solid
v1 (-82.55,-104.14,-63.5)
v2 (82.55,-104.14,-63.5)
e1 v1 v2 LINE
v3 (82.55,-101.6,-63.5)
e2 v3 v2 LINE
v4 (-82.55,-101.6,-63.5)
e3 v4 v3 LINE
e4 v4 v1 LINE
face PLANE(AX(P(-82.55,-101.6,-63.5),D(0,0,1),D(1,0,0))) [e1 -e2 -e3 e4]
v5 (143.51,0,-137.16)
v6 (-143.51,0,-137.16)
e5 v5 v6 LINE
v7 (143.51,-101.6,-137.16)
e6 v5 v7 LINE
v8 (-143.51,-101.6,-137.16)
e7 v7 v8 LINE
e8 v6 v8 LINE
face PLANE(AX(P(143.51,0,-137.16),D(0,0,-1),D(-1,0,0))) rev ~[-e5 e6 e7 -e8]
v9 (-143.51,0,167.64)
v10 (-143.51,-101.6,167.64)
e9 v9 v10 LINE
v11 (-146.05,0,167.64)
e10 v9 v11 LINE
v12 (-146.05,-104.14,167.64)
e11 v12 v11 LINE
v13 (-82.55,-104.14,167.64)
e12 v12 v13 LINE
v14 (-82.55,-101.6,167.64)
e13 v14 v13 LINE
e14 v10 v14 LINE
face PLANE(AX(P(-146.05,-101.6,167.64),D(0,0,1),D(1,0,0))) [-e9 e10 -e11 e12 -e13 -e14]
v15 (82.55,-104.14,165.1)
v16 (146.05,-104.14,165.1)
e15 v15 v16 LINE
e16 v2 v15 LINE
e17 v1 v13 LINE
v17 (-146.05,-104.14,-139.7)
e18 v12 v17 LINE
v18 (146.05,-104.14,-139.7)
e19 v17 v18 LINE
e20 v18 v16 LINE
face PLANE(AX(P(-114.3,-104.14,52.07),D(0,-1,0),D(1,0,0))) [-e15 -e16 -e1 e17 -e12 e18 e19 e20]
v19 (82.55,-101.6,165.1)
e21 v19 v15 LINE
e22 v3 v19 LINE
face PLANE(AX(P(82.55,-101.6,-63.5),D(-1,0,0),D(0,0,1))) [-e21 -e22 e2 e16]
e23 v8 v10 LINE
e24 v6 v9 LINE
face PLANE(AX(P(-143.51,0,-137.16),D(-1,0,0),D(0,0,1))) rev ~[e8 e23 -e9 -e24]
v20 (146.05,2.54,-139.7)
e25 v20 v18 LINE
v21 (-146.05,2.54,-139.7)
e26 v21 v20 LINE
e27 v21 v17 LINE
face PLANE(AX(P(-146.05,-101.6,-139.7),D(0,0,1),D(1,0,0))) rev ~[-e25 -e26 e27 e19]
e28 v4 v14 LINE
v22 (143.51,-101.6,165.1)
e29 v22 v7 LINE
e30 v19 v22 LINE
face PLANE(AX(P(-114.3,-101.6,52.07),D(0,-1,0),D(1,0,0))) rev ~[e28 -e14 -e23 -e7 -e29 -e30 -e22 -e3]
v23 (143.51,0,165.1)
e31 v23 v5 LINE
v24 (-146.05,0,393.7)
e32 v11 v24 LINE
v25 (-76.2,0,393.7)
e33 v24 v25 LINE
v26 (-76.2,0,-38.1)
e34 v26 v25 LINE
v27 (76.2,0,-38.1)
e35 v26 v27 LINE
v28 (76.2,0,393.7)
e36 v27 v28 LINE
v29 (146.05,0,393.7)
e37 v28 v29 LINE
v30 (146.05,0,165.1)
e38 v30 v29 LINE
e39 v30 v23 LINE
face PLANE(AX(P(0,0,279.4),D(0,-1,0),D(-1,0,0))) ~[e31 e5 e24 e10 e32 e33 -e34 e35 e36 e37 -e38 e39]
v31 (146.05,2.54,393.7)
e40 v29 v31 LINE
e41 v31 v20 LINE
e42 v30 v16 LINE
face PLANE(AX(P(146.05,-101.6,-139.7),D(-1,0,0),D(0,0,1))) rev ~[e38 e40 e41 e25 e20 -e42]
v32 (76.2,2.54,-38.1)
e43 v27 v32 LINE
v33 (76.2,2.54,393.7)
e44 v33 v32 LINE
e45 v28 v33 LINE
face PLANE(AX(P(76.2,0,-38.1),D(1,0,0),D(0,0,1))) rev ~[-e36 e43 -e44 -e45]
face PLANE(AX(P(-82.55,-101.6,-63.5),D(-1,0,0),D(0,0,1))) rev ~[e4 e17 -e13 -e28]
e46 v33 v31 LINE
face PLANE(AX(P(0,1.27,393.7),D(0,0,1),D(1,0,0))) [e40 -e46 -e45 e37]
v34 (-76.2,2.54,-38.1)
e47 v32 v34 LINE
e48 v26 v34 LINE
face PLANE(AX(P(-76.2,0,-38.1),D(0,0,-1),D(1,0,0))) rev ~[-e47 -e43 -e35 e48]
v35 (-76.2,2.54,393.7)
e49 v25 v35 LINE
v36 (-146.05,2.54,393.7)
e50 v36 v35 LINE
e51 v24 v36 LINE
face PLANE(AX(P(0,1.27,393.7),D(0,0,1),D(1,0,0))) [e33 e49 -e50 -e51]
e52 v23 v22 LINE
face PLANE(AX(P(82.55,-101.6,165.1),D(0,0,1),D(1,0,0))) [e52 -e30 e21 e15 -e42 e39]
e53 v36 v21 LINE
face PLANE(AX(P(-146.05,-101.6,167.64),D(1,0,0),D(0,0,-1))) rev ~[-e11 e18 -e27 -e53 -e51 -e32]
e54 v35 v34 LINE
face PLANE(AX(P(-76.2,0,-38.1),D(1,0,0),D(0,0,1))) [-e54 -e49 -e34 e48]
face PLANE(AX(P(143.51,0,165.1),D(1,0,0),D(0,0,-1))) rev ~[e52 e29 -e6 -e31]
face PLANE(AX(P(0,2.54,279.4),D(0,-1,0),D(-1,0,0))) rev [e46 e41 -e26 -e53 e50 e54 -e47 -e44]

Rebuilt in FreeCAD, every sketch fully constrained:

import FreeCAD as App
import Part
import Sketcher
Q = App.Units.Quantity


def add_polygon(sketch, points):
    """Adds a closed chain of lines whose ends are joined by coincident constraints."""
    first, n = sketch.GeometryCount, len(points)
    for a, b in zip(points, points[1:] + points[:1]):
        sketch.addGeometry(Part.LineSegment(App.Vector(*a, 0), App.Vector(*b, 0)), False)
    for i in range(n):
        sketch.addConstraint(Sketcher.Constraint("Coincident", first + i, 2, first + (i + 1) % n, 1))

doc = App.newDocument("Part")
body = doc.addObject("PartDesign::Body", "Body")

# Sketch on XZ plane
sketch1 = body.newObject("Sketcher::SketchObject", "Sketch")
sketch1.AttachmentSupport = (doc.getObject("XZ_Plane"), [""])
sketch1.MapMode = "FlatFace"
add_polygon(sketch1, [(-146, 140), (-146, -140), (146, -140), (146, 140)])  # lines 0-3
sketch1.addConstraint(Sketcher.Constraint("Vertical", 0))
sketch1.addConstraint(Sketcher.Constraint("Horizontal", 1))
sketch1.addConstraint(Sketcher.Constraint("Vertical", 2))
sketch1.addConstraint(Sketcher.Constraint("Horizontal", 3))
sketch1.addConstraint(Sketcher.Constraint("Symmetric", 0, 2, 2, 2, -1, 1))
sketch1.addConstraint(Sketcher.Constraint("DistanceY", 0, 2, 0, 1, Q("11 in")))
sketch1.addConstraint(Sketcher.Constraint("DistanceX", 1, 1, 1, 2, Q("11.5 in")))
pad1 = body.newObject("PartDesign::Pad", "Pad")
pad1.Profile = sketch1
pad1.Length = Q("0.1 in")
pad1.Reversed = True
body2 = doc.addObject("PartDesign::Body", "Body001")
doc.recompute()

body2.BaseFeature = body
doc.recompute()

mirroring = doc.addObject("Part::Mirroring", "Mirroring")
mirroring.Source = body
mirroring.Base = App.Vector(0, 1.27, 139.7)
mirroring.Normal = App.Vector(0, 0, 1)
body3 = doc.addObject("PartDesign::Body", "Body002")
body3.BaseFeature = mirroring
boolean = body2.newObject("PartDesign::Boolean", "Boolean")
boolean.Type = "Fuse"
boolean.addObjects([body3])
doc.recompute()

# Sketch on XZ plane
sketch2 = body2.newObject("Sketcher::SketchObject", "Sketch001")
sketch2.AttachmentSupport = (doc.getObject("XZ_Plane001"), [""])
sketch2.MapMode = "FlatFace"
add_polygon(sketch2, [(-143.5, -137.2), (-143.5, 167.6), (-146.1, 167.6), (-146.1, -139.7), (146.1, -139.7), (146.1, 165.1), (143.5, 165.1), (143.5, -137.2)])  # lines 0-7
sketch2.addConstraint(Sketcher.Constraint("Vertical", 0))
sketch2.addConstraint(Sketcher.Constraint("Horizontal", 1))
sketch2.addConstraint(Sketcher.Constraint("Vertical", 2))
sketch2.addConstraint(Sketcher.Constraint("Horizontal", 3))
sketch2.addConstraint(Sketcher.Constraint("Vertical", 4))
sketch2.addConstraint(Sketcher.Constraint("Horizontal", 5))
sketch2.addConstraint(Sketcher.Constraint("Vertical", 6))
sketch2.addConstraint(Sketcher.Constraint("Horizontal", 7))
sketch2.addConstraint(Sketcher.Constraint("Equal", 1, 5))
sketch2.addConstraint(Sketcher.Constraint("Equal", 0, 4))
sketch2.addConstraint(Sketcher.Constraint("DistanceY", 0, 1, 0, 2, Q("12 in")))
sketch2.addConstraint(Sketcher.Constraint("DistanceX", 1, 2, 1, 1, Q("0.1 in")))
sketch2.addConstraint(Sketcher.Constraint("DistanceX", 3, 1, 3, 2, Q("11.5 in")))
sketch2.addConstraint(Sketcher.Constraint("DistanceY", 2, 2, 2, 1, Q("12.1 in")))
sketch2.addConstraint(Sketcher.Constraint("DistanceY", -1, 1, 0, 2, Q("6.6 in")))
sketch2.addConstraint(Sketcher.Constraint("DistanceX", 0, 2, -1, 1, Q("5.65 in")))
pad2 = body2.newObject("PartDesign::Pad", "Pad001")
pad2.Profile = sketch2
pad2.Length = Q("4 in")

# Sketch on XZ plane
sketch3 = body2.newObject("Sketcher::SketchObject", "Sketch002")
sketch3.AttachmentSupport = (doc.getObject("XZ_Plane001"), [""])
sketch3.MapMode = "FlatFace"
sketch3.AttachmentOffset = App.Placement(App.Vector(0, 0, 4 * 25.4), App.Rotation())
add_polygon(sketch3, [(-146, 168), (-146, -140), (146, -140), (146, 165), (83, 165), (83, -64), (-83, -64), (-83, 168)])  # lines 0-7
sketch3.addConstraint(Sketcher.Constraint("Vertical", 0))
sketch3.addConstraint(Sketcher.Constraint("Horizontal", 1))
sketch3.addConstraint(Sketcher.Constraint("Vertical", 2))
sketch3.addConstraint(Sketcher.Constraint("Horizontal", 3))
sketch3.addConstraint(Sketcher.Constraint("Vertical", 4))
sketch3.addConstraint(Sketcher.Constraint("Horizontal", 5))
sketch3.addConstraint(Sketcher.Constraint("Vertical", 6))
sketch3.addConstraint(Sketcher.Constraint("Horizontal", 7))
sketch3.addConstraint(Sketcher.Constraint("Equal", 3, 7))
sketch3.addConstraint(Sketcher.Constraint("DistanceY", 2, 1, 2, 2, Q("12 in")))
sketch3.addConstraint(Sketcher.Constraint("DistanceY", 4, 2, 4, 1, Q("9 in")))
sketch3.addConstraint(Sketcher.Constraint("DistanceX", 1, 1, 1, 2, Q("11.5 in")))
sketch3.addConstraint(Sketcher.Constraint("DistanceX", 3, 2, 3, 1, Q("2.5 in")))
sketch3.addConstraint(Sketcher.Constraint("DistanceY", 0, 2, 0, 1, Q("12.1 in")))
sketch3.addConstraint(Sketcher.Constraint("DistanceY", 0, 2, -1, 1, Q("5.5 in")))
sketch3.addConstraint(Sketcher.Constraint("DistanceX", 0, 2, -1, 1, Q("5.75 in")))
pad3 = body2.newObject("PartDesign::Pad", "Pad002")
pad3.Profile = sketch3
pad3.Length = Q("0.1 in")

# Sketch on XY plane
sketch4 = body2.newObject("Sketcher::SketchObject", "Sketch003")
sketch4.AttachmentSupport = (doc.getObject("XY_Plane001"), [""])
sketch4.MapMode = "FlatFace"
sketch4.AttachmentOffset = App.Placement(App.Vector(0, 0, 16.5 * 25.4), App.Rotation())
add_polygon(sketch4, [(-146.1, 2.5), (-146.1, 0), (146.1, 0), (146.1, 2.5)])  # lines 0-3
sketch4.addConstraint(Sketcher.Constraint("Vertical", 0))
sketch4.addConstraint(Sketcher.Constraint("Horizontal", 1))
sketch4.addConstraint(Sketcher.Constraint("Vertical", 2))
sketch4.addConstraint(Sketcher.Constraint("Horizontal", 3))
sketch4.addConstraint(Sketcher.Constraint("Symmetric", 0, 2, 1, 2, -1, 1))
sketch4.addConstraint(Sketcher.Constraint("DistanceX", 1, 1, 1, 2, Q("11.5 in")))
sketch4.addConstraint(Sketcher.Constraint("DistanceY", 0, 2, 0, 1, Q("0.1 in")))
pocket1 = body2.newObject("PartDesign::Pocket", "Pocket")
pocket1.Profile = sketch4
pocket1.Length = Q("1 in")

# Sketch on XZ plane
sketch5 = body2.newObject("Sketcher::SketchObject", "Sketch004")
sketch5.AttachmentSupport = (doc.getObject("XZ_Plane001"), [""])
sketch5.MapMode = "FlatFace"
add_polygon(sketch5, [(-76, 394), (-76, -38), (76, -38), (76, 394)])  # lines 0-3
sketch5.addConstraint(Sketcher.Constraint("Vertical", 0))
sketch5.addConstraint(Sketcher.Constraint("Horizontal", 1))
sketch5.addConstraint(Sketcher.Constraint("Vertical", 2))
sketch5.addConstraint(Sketcher.Constraint("Horizontal", 3))
sketch5.addConstraint(Sketcher.Constraint("DistanceX", 1, 1, 1, 2, Q("6 in")))
sketch5.addConstraint(Sketcher.Constraint("DistanceY", 0, 2, 0, 1, Q("17 in")))
sketch5.addConstraint(Sketcher.Constraint("DistanceX", 0, 2, -1, 1, Q("3 in")))
sketch5.addConstraint(Sketcher.Constraint("DistanceY", 0, 2, -1, 1, Q("1.5 in")))
pocket2 = body2.newObject("PartDesign::Pocket", "Pocket001")
pocket2.Profile = sketch5
pocket2.Length = Q("1 in")
mirroring.Visibility = False

doc.recompute()
